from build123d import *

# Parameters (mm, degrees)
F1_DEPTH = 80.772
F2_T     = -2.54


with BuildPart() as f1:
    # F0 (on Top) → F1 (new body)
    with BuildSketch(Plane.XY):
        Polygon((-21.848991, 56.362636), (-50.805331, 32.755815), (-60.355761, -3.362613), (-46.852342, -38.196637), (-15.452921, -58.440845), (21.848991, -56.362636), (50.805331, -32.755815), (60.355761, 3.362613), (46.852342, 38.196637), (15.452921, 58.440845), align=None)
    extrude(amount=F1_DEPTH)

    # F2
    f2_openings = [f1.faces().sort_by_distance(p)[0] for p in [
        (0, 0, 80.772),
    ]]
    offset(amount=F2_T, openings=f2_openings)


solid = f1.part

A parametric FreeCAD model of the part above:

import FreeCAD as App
import Part
import Sketcher
from FreeCAD import Vector
Q = App.Units.Quantity


def faces_at(feature, points):
    """Names of the faces that lie closest to the given points."""
    faces = feature.Shape.Faces
    near = lambda p: min(range(len(faces)), key=lambda i: faces[i].distToShape(Part.Vertex(*p))[0])
    return sorted({f"Face{near(p) + 1}" for p in points})

doc = App.newDocument("Part")
body = doc.addObject("PartDesign::Body", "Body")

# Sketch on XY plane
sketch1 = body.newObject("Sketcher::SketchObject", "Sketch")
sketch1.AttachmentSupport = (doc.getObject("XY_Plane"), [""])
sketch1.MapMode = "FlatFace"
sketch1.addGeometry([
    Part.LineSegment(Vector(-22, 56, 0), Vector(-51, 33, 0)),  # 0
    Part.LineSegment(Vector(-51, 33, 0), Vector(-60, -3, 0)),  # 1
    Part.LineSegment(Vector(-60, -3, 0), Vector(-47, -38, 0)),  # 2
    Part.LineSegment(Vector(-47, -38, 0), Vector(-15, -58, 0)),  # 3
    Part.LineSegment(Vector(-15, -58, 0), Vector(22, -56, 0)),  # 4
    Part.LineSegment(Vector(22, -56, 0), Vector(51, -33, 0)),  # 5
    Part.LineSegment(Vector(51, -33, 0), Vector(60, 3, 0)),  # 6
    Part.LineSegment(Vector(60, 3, 0), Vector(47, 38, 0)),  # 7
    Part.LineSegment(Vector(47, 38, 0), Vector(15, 58, 0)),  # 8
    Part.LineSegment(Vector(15, 58, 0), Vector(-22, 56, 0)),  # 9
], False)
sketch1.addConstraint([
    Sketcher.Constraint("Coincident", 0, 2, 1, 1),
    Sketcher.Constraint("Coincident", 1, 2, 2, 1),
    Sketcher.Constraint("Coincident", 2, 2, 3, 1),
    Sketcher.Constraint("Coincident", 3, 2, 4, 1),
    Sketcher.Constraint("Coincident", 4, 2, 5, 1),
    Sketcher.Constraint("Coincident", 5, 2, 6, 1),
    Sketcher.Constraint("Coincident", 6, 2, 7, 1),
    Sketcher.Constraint("Coincident", 7, 2, 8, 1),
    Sketcher.Constraint("Coincident", 8, 2, 9, 1),
    Sketcher.Constraint("Coincident", 9, 2, 0, 1),
    Sketcher.Constraint("Symmetric", 0, 2, 5, 2, -1, 1),
    Sketcher.Constraint("Symmetric", 1, 2, 6, 2, -1, 1),
    Sketcher.Constraint("Symmetric", 2, 2, 7, 2, -1, 1),
    Sketcher.Constraint("Symmetric", 3, 2, 8, 2, -1, 1),
    Sketcher.Constraint("Symmetric", 4, 2, 9, 2, -1, 1),
    Sketcher.Constraint("Equal", 0, 1),
    Sketcher.Constraint("Equal", 1, 2),
    Sketcher.Constraint("Equal", 2, 3),
    Sketcher.Constraint("Equal", 3, 4),
    Sketcher.Constraint("DistanceY", 4, 2, 2, 2, 18.165999),
    Sketcher.Constraint("DistanceY", 5, 2, 1, 2, 29.393202),
    Sketcher.Constraint("Distance", 0, 37.359759),
    Sketcher.Constraint("DistanceX", 0, 2, -1, 1, 50.805331),
    Sketcher.Constraint("DistanceX", 1, 2, -1, 1, 60.355761),
    Sketcher.Constraint("DistanceX", 3, 2, -1, 1, 15.452921),
])
pad1 = body.newObject("PartDesign::Pad", "Pad")
pad1.Profile = sketch1
pad1.Length = Q("3.18 in")
doc.recompute()

thickness = body.newObject("PartDesign::Thickness", "Thickness")
thickness.Base = (pad1, faces_at(pad1, [(0, 0, 80.772)]))
thickness.Value = Q("0.1 in")
thickness.Reversed = True
thickness.Join = "Arc"

doc.recompute()
